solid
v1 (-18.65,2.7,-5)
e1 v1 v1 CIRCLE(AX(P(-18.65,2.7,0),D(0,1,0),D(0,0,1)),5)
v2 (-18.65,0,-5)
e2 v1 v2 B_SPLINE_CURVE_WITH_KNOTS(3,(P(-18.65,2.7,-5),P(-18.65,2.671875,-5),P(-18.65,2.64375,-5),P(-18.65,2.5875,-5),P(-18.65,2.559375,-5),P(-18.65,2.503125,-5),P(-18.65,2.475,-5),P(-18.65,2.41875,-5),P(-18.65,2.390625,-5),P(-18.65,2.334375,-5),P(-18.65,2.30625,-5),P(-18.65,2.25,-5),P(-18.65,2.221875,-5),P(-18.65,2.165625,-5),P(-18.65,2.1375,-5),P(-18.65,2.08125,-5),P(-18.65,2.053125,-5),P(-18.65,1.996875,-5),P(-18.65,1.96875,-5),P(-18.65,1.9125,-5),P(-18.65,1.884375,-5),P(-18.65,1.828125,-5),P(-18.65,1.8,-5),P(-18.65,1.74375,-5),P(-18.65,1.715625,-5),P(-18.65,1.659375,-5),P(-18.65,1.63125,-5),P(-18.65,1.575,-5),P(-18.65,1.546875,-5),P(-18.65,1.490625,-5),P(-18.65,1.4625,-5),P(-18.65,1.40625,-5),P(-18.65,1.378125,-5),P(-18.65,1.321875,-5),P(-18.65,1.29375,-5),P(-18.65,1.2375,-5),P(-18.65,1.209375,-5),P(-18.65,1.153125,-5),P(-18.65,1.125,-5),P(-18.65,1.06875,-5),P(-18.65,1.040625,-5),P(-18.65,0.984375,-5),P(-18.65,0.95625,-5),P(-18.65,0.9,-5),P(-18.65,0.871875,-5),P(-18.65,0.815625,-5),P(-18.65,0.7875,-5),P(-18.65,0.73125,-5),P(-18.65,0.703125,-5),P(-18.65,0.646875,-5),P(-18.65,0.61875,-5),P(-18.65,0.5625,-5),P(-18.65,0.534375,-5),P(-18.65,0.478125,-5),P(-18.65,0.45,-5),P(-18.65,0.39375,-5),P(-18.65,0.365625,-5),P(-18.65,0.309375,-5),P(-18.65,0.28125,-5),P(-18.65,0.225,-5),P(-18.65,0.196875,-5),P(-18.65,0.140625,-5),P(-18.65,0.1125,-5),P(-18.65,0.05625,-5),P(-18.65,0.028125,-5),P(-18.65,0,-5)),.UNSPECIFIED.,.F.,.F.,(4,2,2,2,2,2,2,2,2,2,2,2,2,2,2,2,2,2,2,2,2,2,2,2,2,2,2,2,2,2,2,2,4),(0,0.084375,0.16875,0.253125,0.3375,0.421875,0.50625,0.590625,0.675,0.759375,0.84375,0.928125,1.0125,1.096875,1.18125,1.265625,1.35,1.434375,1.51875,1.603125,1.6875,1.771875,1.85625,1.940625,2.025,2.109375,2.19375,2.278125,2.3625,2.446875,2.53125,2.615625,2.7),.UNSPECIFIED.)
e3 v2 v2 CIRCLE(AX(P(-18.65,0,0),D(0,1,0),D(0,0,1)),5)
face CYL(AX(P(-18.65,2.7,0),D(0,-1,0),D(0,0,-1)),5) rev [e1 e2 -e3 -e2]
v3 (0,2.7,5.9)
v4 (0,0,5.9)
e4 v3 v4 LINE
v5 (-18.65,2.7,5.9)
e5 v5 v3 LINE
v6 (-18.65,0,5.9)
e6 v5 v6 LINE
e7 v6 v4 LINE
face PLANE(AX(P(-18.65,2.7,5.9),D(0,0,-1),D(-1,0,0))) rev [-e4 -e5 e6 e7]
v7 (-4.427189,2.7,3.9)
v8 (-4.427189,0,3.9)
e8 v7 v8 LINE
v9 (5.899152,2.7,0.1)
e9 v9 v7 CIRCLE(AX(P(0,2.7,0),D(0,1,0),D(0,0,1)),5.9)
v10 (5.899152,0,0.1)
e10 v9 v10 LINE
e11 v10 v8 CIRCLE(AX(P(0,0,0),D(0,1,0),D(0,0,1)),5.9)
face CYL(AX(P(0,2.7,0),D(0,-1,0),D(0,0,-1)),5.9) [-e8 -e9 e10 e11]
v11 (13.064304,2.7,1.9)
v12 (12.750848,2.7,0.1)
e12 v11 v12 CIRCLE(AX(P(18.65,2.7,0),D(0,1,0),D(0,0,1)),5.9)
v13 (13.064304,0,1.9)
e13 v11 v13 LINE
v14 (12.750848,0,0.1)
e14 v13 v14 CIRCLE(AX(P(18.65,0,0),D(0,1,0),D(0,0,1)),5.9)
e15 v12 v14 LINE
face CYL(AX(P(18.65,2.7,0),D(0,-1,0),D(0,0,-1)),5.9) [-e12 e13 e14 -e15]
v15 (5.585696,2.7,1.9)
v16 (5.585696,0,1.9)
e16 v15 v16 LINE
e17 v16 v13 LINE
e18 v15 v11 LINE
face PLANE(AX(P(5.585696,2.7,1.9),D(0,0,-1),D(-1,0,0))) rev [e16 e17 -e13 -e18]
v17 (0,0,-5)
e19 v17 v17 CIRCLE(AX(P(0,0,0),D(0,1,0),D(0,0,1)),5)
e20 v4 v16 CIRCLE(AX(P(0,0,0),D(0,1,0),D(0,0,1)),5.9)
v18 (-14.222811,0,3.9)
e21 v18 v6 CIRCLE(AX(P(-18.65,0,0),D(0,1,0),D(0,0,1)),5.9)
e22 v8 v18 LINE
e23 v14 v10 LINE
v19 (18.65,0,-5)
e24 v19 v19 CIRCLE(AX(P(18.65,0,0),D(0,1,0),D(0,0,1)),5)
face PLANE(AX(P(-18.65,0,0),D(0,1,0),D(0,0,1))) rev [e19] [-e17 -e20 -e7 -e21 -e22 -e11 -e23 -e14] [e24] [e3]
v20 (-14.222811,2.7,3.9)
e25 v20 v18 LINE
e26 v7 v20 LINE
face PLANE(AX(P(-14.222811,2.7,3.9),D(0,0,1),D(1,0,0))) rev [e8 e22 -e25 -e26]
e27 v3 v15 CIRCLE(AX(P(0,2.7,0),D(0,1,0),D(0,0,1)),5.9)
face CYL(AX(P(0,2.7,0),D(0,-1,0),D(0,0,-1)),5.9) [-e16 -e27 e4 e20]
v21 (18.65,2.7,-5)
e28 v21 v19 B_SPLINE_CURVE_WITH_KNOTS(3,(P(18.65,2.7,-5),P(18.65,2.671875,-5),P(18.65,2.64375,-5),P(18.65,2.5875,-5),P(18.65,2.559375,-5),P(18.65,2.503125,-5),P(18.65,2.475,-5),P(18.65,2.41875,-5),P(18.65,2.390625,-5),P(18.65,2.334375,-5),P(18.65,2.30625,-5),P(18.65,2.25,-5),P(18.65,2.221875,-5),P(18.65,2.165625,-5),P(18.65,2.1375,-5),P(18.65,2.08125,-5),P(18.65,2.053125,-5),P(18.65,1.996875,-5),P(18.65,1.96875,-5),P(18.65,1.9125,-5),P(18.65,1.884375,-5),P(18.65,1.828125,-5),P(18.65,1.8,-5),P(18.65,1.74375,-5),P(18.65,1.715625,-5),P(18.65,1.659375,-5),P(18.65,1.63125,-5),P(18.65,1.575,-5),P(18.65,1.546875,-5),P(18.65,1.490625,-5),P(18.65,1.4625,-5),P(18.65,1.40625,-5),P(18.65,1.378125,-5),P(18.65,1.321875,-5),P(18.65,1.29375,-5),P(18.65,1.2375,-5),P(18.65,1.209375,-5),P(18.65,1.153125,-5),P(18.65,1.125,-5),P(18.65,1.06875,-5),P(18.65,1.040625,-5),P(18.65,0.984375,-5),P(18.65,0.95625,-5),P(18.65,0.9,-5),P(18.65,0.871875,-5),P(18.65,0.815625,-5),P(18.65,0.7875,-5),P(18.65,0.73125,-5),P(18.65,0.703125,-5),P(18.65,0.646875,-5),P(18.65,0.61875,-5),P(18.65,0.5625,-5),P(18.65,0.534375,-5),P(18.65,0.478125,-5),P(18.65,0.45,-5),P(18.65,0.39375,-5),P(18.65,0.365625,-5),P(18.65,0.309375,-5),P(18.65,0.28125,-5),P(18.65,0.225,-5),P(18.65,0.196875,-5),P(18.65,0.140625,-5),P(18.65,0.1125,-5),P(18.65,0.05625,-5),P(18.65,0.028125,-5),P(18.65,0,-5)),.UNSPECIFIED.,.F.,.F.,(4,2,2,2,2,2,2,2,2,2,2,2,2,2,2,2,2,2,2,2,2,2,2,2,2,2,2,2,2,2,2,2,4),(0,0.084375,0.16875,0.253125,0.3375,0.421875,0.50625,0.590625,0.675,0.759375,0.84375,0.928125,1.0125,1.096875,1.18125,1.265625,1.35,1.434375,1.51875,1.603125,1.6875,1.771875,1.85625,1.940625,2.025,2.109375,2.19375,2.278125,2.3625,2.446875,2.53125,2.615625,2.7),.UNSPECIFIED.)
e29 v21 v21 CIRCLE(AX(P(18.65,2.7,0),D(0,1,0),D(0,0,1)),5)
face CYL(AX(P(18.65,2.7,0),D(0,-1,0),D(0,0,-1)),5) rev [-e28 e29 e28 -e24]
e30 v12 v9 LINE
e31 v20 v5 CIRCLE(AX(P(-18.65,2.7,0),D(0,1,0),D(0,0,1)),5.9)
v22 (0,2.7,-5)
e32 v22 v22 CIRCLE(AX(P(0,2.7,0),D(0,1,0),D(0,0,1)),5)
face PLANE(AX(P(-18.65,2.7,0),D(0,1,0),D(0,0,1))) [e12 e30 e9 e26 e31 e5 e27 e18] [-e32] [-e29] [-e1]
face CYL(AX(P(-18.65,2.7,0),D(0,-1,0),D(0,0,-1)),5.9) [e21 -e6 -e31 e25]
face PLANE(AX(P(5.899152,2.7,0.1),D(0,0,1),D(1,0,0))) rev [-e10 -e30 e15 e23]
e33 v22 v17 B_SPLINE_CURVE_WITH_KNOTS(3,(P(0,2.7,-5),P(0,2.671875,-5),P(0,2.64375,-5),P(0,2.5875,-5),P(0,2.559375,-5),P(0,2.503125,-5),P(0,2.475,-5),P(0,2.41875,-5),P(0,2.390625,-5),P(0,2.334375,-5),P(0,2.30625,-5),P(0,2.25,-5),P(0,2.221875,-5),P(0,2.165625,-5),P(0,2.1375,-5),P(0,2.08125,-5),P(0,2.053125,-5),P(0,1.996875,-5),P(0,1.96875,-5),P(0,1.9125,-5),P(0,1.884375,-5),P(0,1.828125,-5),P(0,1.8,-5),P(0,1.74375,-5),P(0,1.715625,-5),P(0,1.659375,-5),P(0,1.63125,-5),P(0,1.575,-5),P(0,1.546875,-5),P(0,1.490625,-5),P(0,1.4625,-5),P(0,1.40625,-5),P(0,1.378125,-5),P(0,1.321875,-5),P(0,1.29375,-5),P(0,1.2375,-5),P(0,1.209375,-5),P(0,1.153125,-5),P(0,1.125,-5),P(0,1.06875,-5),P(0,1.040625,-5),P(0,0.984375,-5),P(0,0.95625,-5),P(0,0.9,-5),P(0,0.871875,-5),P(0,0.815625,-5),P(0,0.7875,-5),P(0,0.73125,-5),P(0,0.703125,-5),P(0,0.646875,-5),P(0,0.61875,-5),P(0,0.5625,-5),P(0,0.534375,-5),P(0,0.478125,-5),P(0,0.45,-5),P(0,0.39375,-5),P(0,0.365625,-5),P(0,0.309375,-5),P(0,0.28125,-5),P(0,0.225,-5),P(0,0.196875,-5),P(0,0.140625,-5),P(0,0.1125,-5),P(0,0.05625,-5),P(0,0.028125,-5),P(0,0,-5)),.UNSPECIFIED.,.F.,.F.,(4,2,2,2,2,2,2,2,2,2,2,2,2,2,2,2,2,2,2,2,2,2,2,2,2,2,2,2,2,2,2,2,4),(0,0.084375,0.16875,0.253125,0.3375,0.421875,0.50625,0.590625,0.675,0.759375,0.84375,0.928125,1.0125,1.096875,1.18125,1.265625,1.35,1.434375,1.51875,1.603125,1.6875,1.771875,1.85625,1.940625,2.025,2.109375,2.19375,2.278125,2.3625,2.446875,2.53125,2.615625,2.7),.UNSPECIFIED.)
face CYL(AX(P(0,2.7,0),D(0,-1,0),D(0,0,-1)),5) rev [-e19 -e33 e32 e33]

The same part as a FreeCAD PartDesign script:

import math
import FreeCAD as App
import Part
import Sketcher
from FreeCAD import Vector

doc = App.newDocument("Part")
params = doc.addObject("Spreadsheet::Sheet", "Params")
for row, (alias, value) in enumerate([
    ("sketch1_diameter", "10 mm"),
    ("sketch1_radius", "5.9 mm"),
    ("sketch1_width", "18.65 mm"),
    ("pad1_length", "2.7 mm"),
], start=1):
    params.set(f"A{row}", alias)
    params.set(f"B{row}", "=" + value)
    params.setAlias(f"B{row}", alias)

body = doc.addObject("PartDesign::Body", "Body")

sketch1 = body.newObject("Sketcher::SketchObject", "Sketch")
sketch1.AttachmentSupport = (doc.getObject("XZ_Plane"), [""])
sketch1.MapMode = "FlatFace"
sketch1.addGeometry(Part.LineSegment(Vector(-18.6, 5.9, 0), Vector(0, 5.9, 0)), False)
sketch1.addGeometry(Part.ArcOfCircle(Part.Circle(Vector(0, 0, 0), Vector(0, 0, 1), 5.9), math.radians(19), math.radians(90)), False)
sketch1.addGeometry(Part.LineSegment(Vector(5.6, 1.9, 0), Vector(13.1, 1.9, 0)), False)
sketch1.addGeometry(Part.ArcOfCircle(Part.Circle(Vector(18.6, 0, 0), Vector(0, 0, 1), 5.9), math.radians(179), math.radians(521)), False)
sketch1.addGeometry(Part.LineSegment(Vector(12.8, 0.1, 0), Vector(5.9, 0.1, 0)), False)
sketch1.addGeometry(Part.ArcOfCircle(Part.Circle(Vector(0, 0, 0), Vector(0, 0, 1), 5.9), math.radians(139), math.radians(361)), False)
sketch1.addGeometry(Part.LineSegment(Vector(-4.4, 3.9, 0), Vector(-14.2, 3.9, 0)), False)
sketch1.addGeometry(Part.ArcOfCircle(Part.Circle(Vector(-18.6, 0, 0), Vector(0, 0, 1), 5.9), math.radians(90), math.radians(401)), False)
sketch1.addGeometry(Part.Circle(Vector(-18.6, 0, 0), Vector(0, 0, 1), 5), False)
sketch1.addGeometry(Part.Circle(Vector(0, 0, 0), Vector(0, 0, 1), 5), False)
sketch1.addGeometry(Part.Circle(Vector(18.6, 0, 0), Vector(0, 0, 1), 5), False)
sketch1.addConstraint(Sketcher.Constraint("Tangent", 0, 2, 1, 2))
sketch1.addConstraint(Sketcher.Constraint("Coincident", 1, 1, 2, 1))
sketch1.addConstraint(Sketcher.Constraint("Coincident", 2, 2, 3, 2))
sketch1.addConstraint(Sketcher.Constraint("Coincident", 3, 1, 4, 1))
sketch1.addConstraint(Sketcher.Constraint("Coincident", 4, 2, 5, 2))
sketch1.addConstraint(Sketcher.Constraint("Coincident", 5, 1, 6, 1))
sketch1.addConstraint(Sketcher.Constraint("Coincident", 6, 2, 7, 2))
sketch1.addConstraint(Sketcher.Constraint("Tangent", 7, 1, 0, 1))
sketch1.addConstraint(Sketcher.Constraint("Horizontal", 0))
sketch1.addConstraint(Sketcher.Constraint("Horizontal", 2))
sketch1.addConstraint(Sketcher.Constraint("Horizontal", 4))
sketch1.addConstraint(Sketcher.Constraint("Horizontal", 6))
sketch1.addConstraint(Sketcher.Constraint("Coincident", 1, 3, -1, 1))
sketch1.addConstraint(Sketcher.Constraint("Coincident", 5, 3, -1, 1))
sketch1.addConstraint(Sketcher.Constraint("Coincident", 9, 3, -1, 1))
sketch1.addConstraint(Sketcher.Constraint("Coincident", 8, 3, 7, 3))
sketch1.addConstraint(Sketcher.Constraint("Coincident", 10, 3, 3, 3))
sketch1.addConstraint(Sketcher.Constraint("Equal", 1, 3))
sketch1.addConstraint(Sketcher.Constraint("Equal", 3, 5))
sketch1.addConstraint(Sketcher.Constraint("Equal", 5, 7))
sketch1.addConstraint(Sketcher.Constraint("Equal", 8, 9))
sketch1.addConstraint(Sketcher.Constraint("Equal", 9, 10))
sketch1.addConstraint(Sketcher.Constraint("Symmetric", 3, 3, 7, 3, -1, 1))
sketch1.addConstraint(Sketcher.Constraint("Diameter", 8, 10.0))
sketch1.addConstraint(Sketcher.Constraint("Radius", 1, 5.9))
sketch1.addConstraint(Sketcher.Constraint("DistanceY", 1, 1, 0, 2, 4.0))
sketch1.addConstraint(Sketcher.Constraint("DistanceY", 5, 1, 0, 2, 2.0))
sketch1.addConstraint(Sketcher.Constraint("DistanceX", 0, 1, 0, 2, 18.65))
sketch1.addConstraint(Sketcher.Constraint("DistanceY", -1, 1, 3, 1, 0.1))
sketch1.setExpression("Constraints[23]", "Params.sketch1_diameter")
sketch1.setExpression("Constraints[24]", "Params.sketch1_radius")
sketch1.setExpression("Constraints[27]", "Params.sketch1_width")
pad1 = body.newObject("PartDesign::Pad", "Pad")
pad1.Profile = sketch1
pad1.setExpression("Length", "Params.pad1_length")
pad1.Reversed = True

doc.recompute()
